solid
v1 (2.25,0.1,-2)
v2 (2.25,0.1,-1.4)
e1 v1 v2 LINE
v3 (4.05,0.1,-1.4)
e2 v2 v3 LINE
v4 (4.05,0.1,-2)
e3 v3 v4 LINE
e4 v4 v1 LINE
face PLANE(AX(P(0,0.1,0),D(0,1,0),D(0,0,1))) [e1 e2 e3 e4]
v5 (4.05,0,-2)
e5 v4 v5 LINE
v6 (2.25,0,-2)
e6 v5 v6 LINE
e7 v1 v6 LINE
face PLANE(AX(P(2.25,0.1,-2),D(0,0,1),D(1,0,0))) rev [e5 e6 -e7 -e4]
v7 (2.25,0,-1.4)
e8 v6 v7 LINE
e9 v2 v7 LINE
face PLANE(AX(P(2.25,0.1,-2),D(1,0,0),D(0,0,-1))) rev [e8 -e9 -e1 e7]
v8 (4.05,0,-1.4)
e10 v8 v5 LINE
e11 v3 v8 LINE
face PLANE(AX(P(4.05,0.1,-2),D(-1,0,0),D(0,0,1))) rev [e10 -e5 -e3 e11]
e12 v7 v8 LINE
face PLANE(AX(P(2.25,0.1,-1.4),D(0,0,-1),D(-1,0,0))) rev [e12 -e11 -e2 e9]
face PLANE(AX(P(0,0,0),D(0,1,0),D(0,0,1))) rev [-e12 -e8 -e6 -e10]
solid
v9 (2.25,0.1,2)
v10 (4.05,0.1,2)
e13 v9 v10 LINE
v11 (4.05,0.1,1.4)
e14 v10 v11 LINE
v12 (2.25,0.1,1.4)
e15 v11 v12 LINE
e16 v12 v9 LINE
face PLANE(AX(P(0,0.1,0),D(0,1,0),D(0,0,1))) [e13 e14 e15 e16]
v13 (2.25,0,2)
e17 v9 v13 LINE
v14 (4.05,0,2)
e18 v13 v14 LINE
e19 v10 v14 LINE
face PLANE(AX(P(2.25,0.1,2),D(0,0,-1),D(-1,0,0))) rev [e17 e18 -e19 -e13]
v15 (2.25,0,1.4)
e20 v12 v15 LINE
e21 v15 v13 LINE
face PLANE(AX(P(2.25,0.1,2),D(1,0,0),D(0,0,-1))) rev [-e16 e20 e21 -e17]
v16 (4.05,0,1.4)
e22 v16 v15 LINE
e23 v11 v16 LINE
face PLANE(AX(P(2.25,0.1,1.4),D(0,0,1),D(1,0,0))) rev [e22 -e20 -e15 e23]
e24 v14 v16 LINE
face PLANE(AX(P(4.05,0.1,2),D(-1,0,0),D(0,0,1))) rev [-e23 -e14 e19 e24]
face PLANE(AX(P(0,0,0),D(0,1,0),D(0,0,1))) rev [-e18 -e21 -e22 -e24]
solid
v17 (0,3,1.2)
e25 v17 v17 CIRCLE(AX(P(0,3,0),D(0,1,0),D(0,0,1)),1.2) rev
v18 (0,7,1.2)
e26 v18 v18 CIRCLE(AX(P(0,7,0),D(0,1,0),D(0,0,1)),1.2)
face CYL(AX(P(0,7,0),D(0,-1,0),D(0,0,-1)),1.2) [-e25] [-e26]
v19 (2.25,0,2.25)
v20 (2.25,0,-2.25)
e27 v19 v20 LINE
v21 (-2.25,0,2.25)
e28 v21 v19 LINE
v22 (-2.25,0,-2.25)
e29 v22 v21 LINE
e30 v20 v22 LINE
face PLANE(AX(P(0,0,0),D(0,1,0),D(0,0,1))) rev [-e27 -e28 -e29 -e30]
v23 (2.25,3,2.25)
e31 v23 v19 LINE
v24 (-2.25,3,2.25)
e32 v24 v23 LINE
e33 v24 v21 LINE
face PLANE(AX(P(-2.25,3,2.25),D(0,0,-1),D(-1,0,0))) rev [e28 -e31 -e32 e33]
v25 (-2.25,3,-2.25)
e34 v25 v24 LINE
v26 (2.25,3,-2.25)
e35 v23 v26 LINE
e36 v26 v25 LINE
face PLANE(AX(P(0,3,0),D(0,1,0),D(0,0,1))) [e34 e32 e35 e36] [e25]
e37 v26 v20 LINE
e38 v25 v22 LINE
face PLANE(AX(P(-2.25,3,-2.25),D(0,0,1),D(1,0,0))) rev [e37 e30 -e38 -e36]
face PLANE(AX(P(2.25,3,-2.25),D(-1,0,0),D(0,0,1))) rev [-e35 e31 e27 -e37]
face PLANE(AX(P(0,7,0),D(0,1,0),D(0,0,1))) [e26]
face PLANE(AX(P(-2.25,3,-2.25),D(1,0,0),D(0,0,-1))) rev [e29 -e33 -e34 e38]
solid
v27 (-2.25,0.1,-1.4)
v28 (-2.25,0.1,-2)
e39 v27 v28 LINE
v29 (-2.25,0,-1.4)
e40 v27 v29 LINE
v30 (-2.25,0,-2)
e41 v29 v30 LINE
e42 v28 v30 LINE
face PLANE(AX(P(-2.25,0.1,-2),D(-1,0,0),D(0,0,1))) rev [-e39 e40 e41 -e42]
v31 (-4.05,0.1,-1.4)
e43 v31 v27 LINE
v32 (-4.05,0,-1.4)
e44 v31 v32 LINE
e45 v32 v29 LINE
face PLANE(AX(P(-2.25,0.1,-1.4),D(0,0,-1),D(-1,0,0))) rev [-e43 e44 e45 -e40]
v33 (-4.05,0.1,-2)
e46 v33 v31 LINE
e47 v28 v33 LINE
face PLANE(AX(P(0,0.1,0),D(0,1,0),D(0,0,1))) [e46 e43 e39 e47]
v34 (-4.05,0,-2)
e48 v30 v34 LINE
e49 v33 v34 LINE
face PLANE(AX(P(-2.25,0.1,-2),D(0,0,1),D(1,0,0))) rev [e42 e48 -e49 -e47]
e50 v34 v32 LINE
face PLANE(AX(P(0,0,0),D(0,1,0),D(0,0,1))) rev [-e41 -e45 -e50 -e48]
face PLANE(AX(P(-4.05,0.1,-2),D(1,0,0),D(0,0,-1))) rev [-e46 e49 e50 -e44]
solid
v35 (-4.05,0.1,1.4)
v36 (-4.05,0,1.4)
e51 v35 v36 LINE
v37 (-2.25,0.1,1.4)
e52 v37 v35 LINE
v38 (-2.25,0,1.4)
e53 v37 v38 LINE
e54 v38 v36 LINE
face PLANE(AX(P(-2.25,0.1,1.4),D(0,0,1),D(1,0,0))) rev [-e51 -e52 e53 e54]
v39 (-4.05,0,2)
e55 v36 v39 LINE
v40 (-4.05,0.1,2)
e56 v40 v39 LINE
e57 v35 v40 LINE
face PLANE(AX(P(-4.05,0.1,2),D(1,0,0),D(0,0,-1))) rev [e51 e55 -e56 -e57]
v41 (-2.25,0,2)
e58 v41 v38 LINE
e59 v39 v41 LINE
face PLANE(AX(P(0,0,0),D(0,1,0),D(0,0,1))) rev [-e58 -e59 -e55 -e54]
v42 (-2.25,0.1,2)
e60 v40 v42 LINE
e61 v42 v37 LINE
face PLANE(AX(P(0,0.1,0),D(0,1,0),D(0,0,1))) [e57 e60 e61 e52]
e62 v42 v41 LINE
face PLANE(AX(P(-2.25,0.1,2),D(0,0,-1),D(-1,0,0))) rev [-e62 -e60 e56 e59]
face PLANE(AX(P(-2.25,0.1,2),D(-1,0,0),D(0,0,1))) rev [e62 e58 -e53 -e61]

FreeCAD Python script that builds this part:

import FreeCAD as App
import Part
import Sketcher

V = App.Vector
Q = App.Units.Quantity


def add_polygon(sketch, points):
    """Adds a closed chain of lines whose ends are joined by coincident constraints."""
    first, n = sketch.GeometryCount, len(points)
    for a, b in zip(points, points[1:] + points[:1]):
        sketch.addGeometry(Part.LineSegment(App.Vector(*a, 0), App.Vector(*b, 0)), False)
    for i in range(n):
        sketch.addConstraint(Sketcher.Constraint("Coincident", first + i, 2, first + (i + 1) % n, 1))

doc = App.newDocument("Part")
body = doc.addObject("PartDesign::Body", "Body")

# Sketch on XZ plane
sketch1 = body.newObject("Sketcher::SketchObject", "Sketch")
sketch1.AttachmentSupport = (doc.getObject("XZ_Plane"), [""])
sketch1.MapMode = "FlatFace"
add_polygon(sketch1, [(-2.2, -2.2), (-2.2, 2.2), (2.2, 2.2), (2.2, -2.2)])  # lines 0-3
sketch1.addConstraint(Sketcher.Constraint("Vertical", 0))
sketch1.addConstraint(Sketcher.Constraint("Horizontal", 1))
sketch1.addConstraint(Sketcher.Constraint("Vertical", 2))
sketch1.addConstraint(Sketcher.Constraint("Horizontal", 3))
sketch1.addConstraint(Sketcher.Constraint("Symmetric", 0, 2, 2, 2, -1, 1))
sketch1.addConstraint(Sketcher.Constraint("Equal", 3, 0))
sketch1.addConstraint(Sketcher.Constraint("DistanceX", 1, 1, 1, 2, Q("4.5 mm")))
pad1 = body.newObject("PartDesign::Pad", "Pad")
pad1.Profile = sketch1
pad1.Length = 3
pad1.Reversed = True

# Sketch on XZ plane
sketch2 = body.newObject("Sketcher::SketchObject", "Sketch001")
sketch2.AttachmentSupport = (doc.getObject("XZ_Plane"), [""])
sketch2.MapMode = "FlatFace"
sketch2.addGeometry(Part.Circle(V(0, 0, 0), V(0, 0, 1), 1.2), False)
sketch2.addConstraint(Sketcher.Constraint("Coincident", 0, 3, -1, 1))
sketch2.addConstraint(Sketcher.Constraint("Diameter", 0, Q("2.4 mm")))
pad2 = body.newObject("PartDesign::Pad", "Pad001")
pad2.Profile = sketch2
pad2.Length = 7
pad2.Reversed = True
body2 = doc.addObject("PartDesign::Body", "Body001")

# Sketch on XZ plane
sketch3 = body2.newObject("Sketcher::SketchObject", "Sketch002")
sketch3.AttachmentSupport = (doc.getObject("XZ_Plane001"), [""])
sketch3.MapMode = "FlatFace"
add_polygon(sketch3, [(-4, 1.4), (-4, 2), (-2.2, 2), (-2.2, 1.4)])  # lines 0-3
sketch3.addConstraint(Sketcher.Constraint("Vertical", 0))
sketch3.addConstraint(Sketcher.Constraint("Horizontal", 1))
sketch3.addConstraint(Sketcher.Constraint("Vertical", 2))
sketch3.addConstraint(Sketcher.Constraint("Horizontal", 3))
sketch3.addConstraint(Sketcher.Constraint("DistanceX", 1, 1, 1, 2, Q("1.8 mm")))
sketch3.addConstraint(Sketcher.Constraint("DistanceY", 0, 1, 0, 2, Q("0.6 mm")))
sketch3.addConstraint(Sketcher.Constraint("DistanceY", -1, 1, 0, 2, Q("2 mm")))
sketch3.addConstraint(Sketcher.Constraint("DistanceX", 0, 2, -1, 1, Q("4.05 mm")))
pad3 = body2.newObject("PartDesign::Pad", "Pad002")
pad3.Profile = sketch3
pad3.Length = 0.1
pad3.Reversed = True
body3 = doc.addObject("PartDesign::Body", "Body002")

# Sketch on XZ plane
sketch4 = body3.newObject("Sketcher::SketchObject", "Sketch003")
sketch4.AttachmentSupport = (doc.getObject("XZ_Plane002"), [""])
sketch4.MapMode = "FlatFace"
add_polygon(sketch4, [(-4, -2), (-4, -1.4), (-2.2, -1.4), (-2.2, -2)])  # lines 0-3
sketch4.addConstraint(Sketcher.Constraint("Vertical", 0))
sketch4.addConstraint(Sketcher.Constraint("Horizontal", 1))
sketch4.addConstraint(Sketcher.Constraint("Vertical", 2))
sketch4.addConstraint(Sketcher.Constraint("Horizontal", 3))
sketch4.addConstraint(Sketcher.Constraint("DistanceX", 1, 1, 1, 2, Q("1.8 mm")))
sketch4.addConstraint(Sketcher.Constraint("DistanceY", 0, 1, 0, 2, Q("0.6 mm")))
sketch4.addConstraint(Sketcher.Constraint("DistanceY", 2, 2, -1, 1, Q("2 mm")))
sketch4.addConstraint(Sketcher.Constraint("DistanceX", 0, 2, -1, 1, Q("4.05 mm")))
pad4 = body3.newObject("PartDesign::Pad", "Pad003")
pad4.Profile = sketch4
pad4.Length = 0.1
pad4.Reversed = True
body4 = doc.addObject("PartDesign::Body", "Body003")

# Sketch on XZ plane
sketch5 = body4.newObject("Sketcher::SketchObject", "Sketch004")
sketch5.AttachmentSupport = (doc.getObject("XZ_Plane003"), [""])
sketch5.MapMode = "FlatFace"
add_polygon(sketch5, [(2.2, -2), (2.2, -1.4), (4, -1.4), (4, -2)])  # lines 0-3
sketch5.addConstraint(Sketcher.Constraint("Vertical", 0))
sketch5.addConstraint(Sketcher.Constraint("Horizontal", 1))
sketch5.addConstraint(Sketcher.Constraint("Vertical", 2))
sketch5.addConstraint(Sketcher.Constraint("Horizontal", 3))
sketch5.addConstraint(Sketcher.Constraint("DistanceX", 1, 1, 1, 2, Q("1.8 mm")))
sketch5.addConstraint(Sketcher.Constraint("DistanceY", 0, 1, 0, 2, Q("0.6 mm")))
sketch5.addConstraint(Sketcher.Constraint("DistanceY", 2, 2, -1, 1, Q("2 mm")))
sketch5.addConstraint(Sketcher.Constraint("DistanceX", -1, 1, 0, 2, Q("2.25 mm")))
pad5 = body4.newObject("PartDesign::Pad", "Pad004")
pad5.Profile = sketch5
pad5.Length = 0.1
pad5.Reversed = True
body5 = doc.addObject("PartDesign::Body", "Body004")

# Sketch on XZ plane
sketch6 = body5.newObject("Sketcher::SketchObject", "Sketch005")
sketch6.AttachmentSupport = (doc.getObject("XZ_Plane004"), [""])
sketch6.MapMode = "FlatFace"
add_polygon(sketch6, [(2.2, 1.4), (2.2, 2), (4, 2), (4, 1.4)])  # lines 0-3
sketch6.addConstraint(Sketcher.Constraint("Vertical", 0))
sketch6.addConstraint(Sketcher.Constraint("Horizontal", 1))
sketch6.addConstraint(Sketcher.Constraint("Vertical", 2))
sketch6.addConstraint(Sketcher.Constraint("Horizontal", 3))
sketch6.addConstraint(Sketcher.Constraint("DistanceX", 1, 1, 1, 2, Q("1.8 mm")))
sketch6.addConstraint(Sketcher.Constraint("DistanceY", 0, 1, 0, 2, Q("0.6 mm")))
sketch6.addConstraint(Sketcher.Constraint("DistanceY", -1, 1, 0, 2, Q("2 mm")))
sketch6.addConstraint(Sketcher.Constraint("DistanceX", -1, 1, 0, 2, Q("2.25 mm")))
pad6 = body5.newObject("PartDesign::Pad", "Pad005")
pad6.Profile = sketch6
pad6.Length = 0.1
pad6.Reversed = True

doc.recompute()
